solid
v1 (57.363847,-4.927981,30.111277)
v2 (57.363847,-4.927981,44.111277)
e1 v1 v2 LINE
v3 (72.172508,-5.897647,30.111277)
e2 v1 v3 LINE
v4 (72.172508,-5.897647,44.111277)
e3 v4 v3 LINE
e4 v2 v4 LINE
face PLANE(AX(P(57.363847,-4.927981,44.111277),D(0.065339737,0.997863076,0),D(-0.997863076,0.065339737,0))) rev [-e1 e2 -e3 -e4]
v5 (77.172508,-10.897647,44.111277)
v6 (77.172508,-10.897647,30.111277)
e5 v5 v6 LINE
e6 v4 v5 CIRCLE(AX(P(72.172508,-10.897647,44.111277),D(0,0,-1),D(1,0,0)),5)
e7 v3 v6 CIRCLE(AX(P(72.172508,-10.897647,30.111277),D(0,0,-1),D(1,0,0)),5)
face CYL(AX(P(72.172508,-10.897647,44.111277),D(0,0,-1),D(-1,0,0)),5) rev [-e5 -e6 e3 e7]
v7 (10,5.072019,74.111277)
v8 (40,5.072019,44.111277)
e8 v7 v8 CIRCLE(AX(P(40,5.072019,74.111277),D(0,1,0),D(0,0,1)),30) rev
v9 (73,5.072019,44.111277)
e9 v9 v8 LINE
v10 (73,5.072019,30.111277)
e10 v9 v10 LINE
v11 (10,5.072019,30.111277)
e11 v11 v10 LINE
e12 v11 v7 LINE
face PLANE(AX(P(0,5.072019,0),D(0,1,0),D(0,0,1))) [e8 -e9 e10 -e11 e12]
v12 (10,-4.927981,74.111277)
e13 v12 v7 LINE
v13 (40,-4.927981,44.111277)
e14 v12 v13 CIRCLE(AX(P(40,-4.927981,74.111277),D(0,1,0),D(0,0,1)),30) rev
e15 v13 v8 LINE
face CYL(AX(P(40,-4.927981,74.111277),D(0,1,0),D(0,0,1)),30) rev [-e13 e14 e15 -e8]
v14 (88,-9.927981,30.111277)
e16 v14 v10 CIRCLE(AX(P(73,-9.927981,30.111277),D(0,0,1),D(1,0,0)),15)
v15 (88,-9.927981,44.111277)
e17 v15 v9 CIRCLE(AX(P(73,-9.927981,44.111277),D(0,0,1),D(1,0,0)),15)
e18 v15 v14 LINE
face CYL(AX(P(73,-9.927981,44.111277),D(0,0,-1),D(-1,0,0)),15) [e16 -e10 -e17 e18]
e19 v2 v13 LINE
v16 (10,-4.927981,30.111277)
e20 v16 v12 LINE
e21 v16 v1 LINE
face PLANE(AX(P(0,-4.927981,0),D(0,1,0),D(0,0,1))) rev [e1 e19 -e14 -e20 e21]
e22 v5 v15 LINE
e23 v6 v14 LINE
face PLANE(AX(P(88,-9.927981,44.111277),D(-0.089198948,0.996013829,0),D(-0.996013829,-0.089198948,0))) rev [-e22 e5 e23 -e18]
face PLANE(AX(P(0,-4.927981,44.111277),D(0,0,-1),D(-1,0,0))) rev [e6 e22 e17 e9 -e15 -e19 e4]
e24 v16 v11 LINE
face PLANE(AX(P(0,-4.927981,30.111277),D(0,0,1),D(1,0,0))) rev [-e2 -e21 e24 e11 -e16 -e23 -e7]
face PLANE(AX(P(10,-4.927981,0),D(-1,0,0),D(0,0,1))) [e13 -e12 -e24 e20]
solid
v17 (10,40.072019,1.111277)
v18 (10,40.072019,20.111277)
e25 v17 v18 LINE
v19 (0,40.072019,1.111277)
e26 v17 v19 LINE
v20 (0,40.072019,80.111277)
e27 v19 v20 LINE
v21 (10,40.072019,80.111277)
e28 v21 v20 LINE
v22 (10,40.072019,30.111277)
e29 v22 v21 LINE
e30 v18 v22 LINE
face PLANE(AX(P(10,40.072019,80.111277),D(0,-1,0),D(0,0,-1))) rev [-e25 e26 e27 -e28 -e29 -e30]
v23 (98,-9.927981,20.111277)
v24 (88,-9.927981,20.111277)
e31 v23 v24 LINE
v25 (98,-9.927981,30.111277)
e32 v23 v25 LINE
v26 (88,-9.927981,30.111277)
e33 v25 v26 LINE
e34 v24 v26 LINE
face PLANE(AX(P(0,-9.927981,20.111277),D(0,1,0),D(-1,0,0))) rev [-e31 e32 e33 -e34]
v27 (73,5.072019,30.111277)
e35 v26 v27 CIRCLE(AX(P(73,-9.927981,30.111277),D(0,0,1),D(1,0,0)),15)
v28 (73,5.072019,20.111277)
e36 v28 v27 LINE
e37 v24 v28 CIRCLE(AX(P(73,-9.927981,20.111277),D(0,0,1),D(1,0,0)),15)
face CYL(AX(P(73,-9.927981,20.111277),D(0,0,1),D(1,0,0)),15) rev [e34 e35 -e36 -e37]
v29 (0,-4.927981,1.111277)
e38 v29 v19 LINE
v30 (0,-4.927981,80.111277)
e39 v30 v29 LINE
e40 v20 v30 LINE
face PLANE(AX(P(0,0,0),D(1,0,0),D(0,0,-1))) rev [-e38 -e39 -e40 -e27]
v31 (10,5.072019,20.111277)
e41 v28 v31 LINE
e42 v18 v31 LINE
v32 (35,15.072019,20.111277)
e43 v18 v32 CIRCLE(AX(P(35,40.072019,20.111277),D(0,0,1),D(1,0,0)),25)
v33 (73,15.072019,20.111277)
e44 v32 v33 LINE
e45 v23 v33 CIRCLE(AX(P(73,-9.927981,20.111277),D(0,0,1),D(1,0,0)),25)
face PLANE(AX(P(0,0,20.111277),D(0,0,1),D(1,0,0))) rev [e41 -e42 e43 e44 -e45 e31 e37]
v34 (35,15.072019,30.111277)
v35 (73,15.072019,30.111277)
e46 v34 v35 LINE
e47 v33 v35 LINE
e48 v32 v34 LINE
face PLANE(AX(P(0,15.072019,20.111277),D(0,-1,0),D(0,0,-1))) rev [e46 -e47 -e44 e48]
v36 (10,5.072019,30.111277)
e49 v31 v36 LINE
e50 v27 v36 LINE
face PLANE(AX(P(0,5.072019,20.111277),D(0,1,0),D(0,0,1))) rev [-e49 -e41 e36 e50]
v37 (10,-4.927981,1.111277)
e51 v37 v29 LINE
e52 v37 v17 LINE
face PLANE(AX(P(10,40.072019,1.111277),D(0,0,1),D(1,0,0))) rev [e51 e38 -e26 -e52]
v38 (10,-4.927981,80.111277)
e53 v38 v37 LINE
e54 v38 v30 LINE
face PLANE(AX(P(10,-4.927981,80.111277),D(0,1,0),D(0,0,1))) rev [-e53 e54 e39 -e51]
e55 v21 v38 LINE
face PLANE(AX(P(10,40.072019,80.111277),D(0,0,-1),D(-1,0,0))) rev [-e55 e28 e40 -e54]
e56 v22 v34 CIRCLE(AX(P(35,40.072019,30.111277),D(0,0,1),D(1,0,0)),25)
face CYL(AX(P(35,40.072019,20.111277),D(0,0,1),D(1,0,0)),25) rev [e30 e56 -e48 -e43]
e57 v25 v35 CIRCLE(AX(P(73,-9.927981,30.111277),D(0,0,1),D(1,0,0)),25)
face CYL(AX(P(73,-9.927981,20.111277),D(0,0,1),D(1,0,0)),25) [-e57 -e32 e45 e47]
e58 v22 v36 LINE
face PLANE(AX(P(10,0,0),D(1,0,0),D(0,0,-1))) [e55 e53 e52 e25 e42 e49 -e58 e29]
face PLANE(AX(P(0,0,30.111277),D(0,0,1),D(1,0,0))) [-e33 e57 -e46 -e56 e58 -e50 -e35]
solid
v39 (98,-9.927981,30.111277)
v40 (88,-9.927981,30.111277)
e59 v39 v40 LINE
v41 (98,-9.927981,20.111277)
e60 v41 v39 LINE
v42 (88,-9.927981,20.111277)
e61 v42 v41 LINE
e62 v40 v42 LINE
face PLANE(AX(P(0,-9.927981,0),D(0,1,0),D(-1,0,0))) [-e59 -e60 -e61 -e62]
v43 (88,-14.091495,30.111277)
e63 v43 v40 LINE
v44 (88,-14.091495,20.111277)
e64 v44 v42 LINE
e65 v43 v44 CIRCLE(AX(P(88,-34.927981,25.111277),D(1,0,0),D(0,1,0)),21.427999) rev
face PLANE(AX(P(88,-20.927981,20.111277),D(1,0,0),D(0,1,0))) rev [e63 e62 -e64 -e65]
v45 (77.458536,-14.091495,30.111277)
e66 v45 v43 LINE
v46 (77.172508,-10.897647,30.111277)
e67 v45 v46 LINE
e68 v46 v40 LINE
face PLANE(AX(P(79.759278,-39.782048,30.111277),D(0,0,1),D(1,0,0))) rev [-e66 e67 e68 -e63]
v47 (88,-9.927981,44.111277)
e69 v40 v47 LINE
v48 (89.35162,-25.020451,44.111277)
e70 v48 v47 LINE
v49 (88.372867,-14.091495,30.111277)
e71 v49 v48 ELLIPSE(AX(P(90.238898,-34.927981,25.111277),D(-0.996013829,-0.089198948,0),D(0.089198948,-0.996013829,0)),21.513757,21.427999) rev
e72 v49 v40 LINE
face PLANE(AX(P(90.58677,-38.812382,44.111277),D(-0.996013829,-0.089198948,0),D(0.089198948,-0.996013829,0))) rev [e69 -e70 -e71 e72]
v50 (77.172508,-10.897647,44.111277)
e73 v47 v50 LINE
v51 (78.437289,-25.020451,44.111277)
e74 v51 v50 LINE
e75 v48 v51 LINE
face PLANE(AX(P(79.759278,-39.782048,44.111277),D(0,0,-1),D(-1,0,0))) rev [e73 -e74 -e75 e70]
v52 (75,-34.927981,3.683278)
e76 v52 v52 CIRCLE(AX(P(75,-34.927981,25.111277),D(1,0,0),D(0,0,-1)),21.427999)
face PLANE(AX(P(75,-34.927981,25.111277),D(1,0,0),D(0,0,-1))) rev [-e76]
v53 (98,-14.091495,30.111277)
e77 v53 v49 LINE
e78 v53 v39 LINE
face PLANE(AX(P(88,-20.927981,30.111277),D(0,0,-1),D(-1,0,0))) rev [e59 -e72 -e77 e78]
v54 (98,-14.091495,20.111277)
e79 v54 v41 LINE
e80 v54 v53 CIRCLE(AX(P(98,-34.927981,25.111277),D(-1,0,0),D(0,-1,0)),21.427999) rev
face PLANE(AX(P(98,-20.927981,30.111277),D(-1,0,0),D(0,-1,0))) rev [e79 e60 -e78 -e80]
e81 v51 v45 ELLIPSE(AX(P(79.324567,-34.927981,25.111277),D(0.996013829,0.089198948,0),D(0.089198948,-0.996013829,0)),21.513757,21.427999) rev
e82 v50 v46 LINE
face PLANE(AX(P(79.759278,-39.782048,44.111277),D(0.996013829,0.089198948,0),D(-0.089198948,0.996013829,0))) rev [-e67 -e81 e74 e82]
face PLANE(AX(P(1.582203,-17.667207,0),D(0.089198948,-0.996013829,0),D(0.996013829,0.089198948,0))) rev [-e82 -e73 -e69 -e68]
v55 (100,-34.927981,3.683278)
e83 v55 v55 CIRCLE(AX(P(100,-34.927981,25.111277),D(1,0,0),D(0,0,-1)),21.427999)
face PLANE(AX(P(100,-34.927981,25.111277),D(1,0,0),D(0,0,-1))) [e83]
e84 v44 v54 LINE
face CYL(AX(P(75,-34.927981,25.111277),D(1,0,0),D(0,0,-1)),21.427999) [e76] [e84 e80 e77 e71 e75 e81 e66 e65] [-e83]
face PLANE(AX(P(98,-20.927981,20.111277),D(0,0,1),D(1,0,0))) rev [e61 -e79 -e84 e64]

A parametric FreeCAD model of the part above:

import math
import FreeCAD as App
import Part
import Sketcher
from FreeCAD import Vector
Q = App.Units.Quantity


def add_polygon(sketch, points):
    """Adds a closed chain of lines whose ends are joined by coincident constraints."""
    first, n = sketch.GeometryCount, len(points)
    for a, b in zip(points, points[1:] + points[:1]):
        sketch.addGeometry(Part.LineSegment(App.Vector(*a, 0), App.Vector(*b, 0)), False)
    for i in range(n):
        sketch.addConstraint(Sketcher.Constraint("Coincident", first + i, 2, first + (i + 1) % n, 1))

doc = App.newDocument("Part")
body = doc.addObject("PartDesign::Body", "Body")

sketch1 = body.newObject("Sketcher::SketchObject", "Sketch")
sketch1.AttachmentSupport = (doc.getObject("YZ_Plane"), [""])
sketch1.MapMode = "FlatFace"
add_polygon(sketch1, [(40, 80), (-5, 80), (-5, 1), (40, 1)])
sketch1.addConstraint(Sketcher.Constraint("Horizontal", 0))
sketch1.addConstraint(Sketcher.Constraint("Vertical", 1))
sketch1.addConstraint(Sketcher.Constraint("Horizontal", 2))
sketch1.addConstraint(Sketcher.Constraint("Vertical", 3))
sketch1.addConstraint(Sketcher.Constraint("DistanceX", 0, 2, 0, 1, Q("45 mm")))
sketch1.addConstraint(Sketcher.Constraint("DistanceY", 1, 2, 1, 1, Q("79 mm")))
sketch1.addConstraint(Sketcher.Constraint("DistanceX", 0, 2, -1, 1, Q("4.927981 mm")))
sketch1.addConstraint(Sketcher.Constraint("DistanceY", -1, 1, 0, 2, Q("80.111277 mm")))
pad1 = body.newObject("PartDesign::Pad", "Pad")
pad1.Profile = sketch1
pad1.Length = 10

sketch2 = body.newObject("Sketcher::SketchObject", "Sketch001")
sketch2.AttachmentSupport = (doc.getObject("XY_Plane"), [""])
sketch2.MapMode = "FlatFace"
sketch2.AttachmentOffset = App.Placement(Vector(0, 0, 30.111277), App.Rotation())
sketch2.addGeometry(Part.ArcOfCircle(Part.Circle(Vector(35, 40, 0), Vector(0, 0, 1), 25), math.radians(-180), math.radians(-90)), False)
sketch2.addGeometry(Part.LineSegment(Vector(10, 40, 0), Vector(10, 5, 0)), False)
sketch2.addGeometry(Part.LineSegment(Vector(10, 5, 0), Vector(73, 5, 0)), False)
sketch2.addGeometry(Part.ArcOfCircle(Part.Circle(Vector(73, -10, 0), Vector(0, 0, 1), 15), math.radians(0), math.radians(90)), False)
sketch2.addGeometry(Part.LineSegment(Vector(88, -10, 0), Vector(98, -10, 0)), False)
sketch2.addGeometry(Part.ArcOfCircle(Part.Circle(Vector(73, -10, 0), Vector(0, 0, 1), 25), math.radians(0), math.radians(90)), False)
sketch2.addGeometry(Part.LineSegment(Vector(73, 15, 0), Vector(35, 15, 0)), False)
sketch2.addConstraint(Sketcher.Constraint("Tangent", 0, 1, 1, 1))
sketch2.addConstraint(Sketcher.Constraint("Coincident", 1, 2, 2, 1))
sketch2.addConstraint(Sketcher.Constraint("Tangent", 2, 2, 3, 2))
sketch2.addConstraint(Sketcher.Constraint("Coincident", 3, 1, 4, 1))
sketch2.addConstraint(Sketcher.Constraint("Coincident", 4, 2, 5, 1))
sketch2.addConstraint(Sketcher.Constraint("Tangent", 5, 2, 6, 1))
sketch2.addConstraint(Sketcher.Constraint("Tangent", 6, 2, 0, 2))
sketch2.addConstraint(Sketcher.Constraint("Vertical", 1))
sketch2.addConstraint(Sketcher.Constraint("Horizontal", 2))
sketch2.addConstraint(Sketcher.Constraint("Horizontal", 4))
sketch2.addConstraint(Sketcher.Constraint("Horizontal", 6))
sketch2.addConstraint(Sketcher.Constraint("Coincident", 5, 3, 3, 3))
sketch2.addConstraint(Sketcher.Constraint("Equal", 0, 5))
sketch2.addConstraint(Sketcher.Constraint("Horizontal", 5, 3, 3, 1))
sketch2.addConstraint(Sketcher.Constraint("Radius", 0, Q("25 mm")))
sketch2.addConstraint(Sketcher.Constraint("Radius", 3, Q("15 mm")))
sketch2.addConstraint(Sketcher.Constraint("DistanceX", 2, 1, 2, 2, Q("63 mm")))
sketch2.addConstraint(Sketcher.Constraint("DistanceX", -1, 1, 0, 3, Q("35 mm")))
sketch2.addConstraint(Sketcher.Constraint("DistanceY", -1, 1, 0, 3, Q("40.072019 mm")))
pad2 = body.newObject("PartDesign::Pad", "Pad001")
pad2.Profile = sketch2
pad2.Length = 10
pad2.Reversed = True
body2 = doc.addObject("PartDesign::Body", "Body001")

sketch3 = body2.newObject("Sketcher::SketchObject", "Sketch002")
sketch3.AttachmentSupport = (doc.getObject("XZ_Plane001"), [""])
sketch3.MapMode = "FlatFace"
sketch3.AttachmentOffset = App.Placement(Vector(0, 0, -5.072019), App.Rotation())
sketch3.addGeometry(Part.LineSegment(Vector(57, 30, 0), Vector(10, 30, 0)), False)
sketch3.addGeometry(Part.LineSegment(Vector(10, 30, 0), Vector(10, 74, 0)), False)
sketch3.addGeometry(Part.ArcOfCircle(Part.Circle(Vector(40, 74, 0), Vector(0, 0, 1), 30), math.radians(180), math.radians(270)), False)
sketch3.addGeometry(Part.LineSegment(Vector(40, 44, 0), Vector(57, 44, 0)), False)
sketch3.addGeometry(Part.LineSegment(Vector(57, 44, 0), Vector(57, 30, 0)), False)
sketch3.addConstraint(Sketcher.Constraint("Coincident", 0, 2, 1, 1))
sketch3.addConstraint(Sketcher.Constraint("Tangent", 1, 2, 2, 1))
sketch3.addConstraint(Sketcher.Constraint("Tangent", 2, 2, 3, 1))
sketch3.addConstraint(Sketcher.Constraint("Coincident", 3, 2, 4, 1))
sketch3.addConstraint(Sketcher.Constraint("Coincident", 4, 2, 0, 1))
sketch3.addConstraint(Sketcher.Constraint("Horizontal", 0))
sketch3.addConstraint(Sketcher.Constraint("Vertical", 1))
sketch3.addConstraint(Sketcher.Constraint("Horizontal", 3))
sketch3.addConstraint(Sketcher.Constraint("Vertical", 4))
sketch3.addConstraint(Sketcher.Constraint("Radius", 2, Q("30 mm")))
sketch3.addConstraint(Sketcher.Constraint("DistanceY", 1, 1, 1, 2, Q("44 mm")))
sketch3.addConstraint(Sketcher.Constraint("DistanceX", -1, 1, 2, 3, Q("40 mm")))
sketch3.addConstraint(Sketcher.Constraint("DistanceX", 0, 2, 0, 1, Q("47.363847 mm")))
sketch3.addConstraint(Sketcher.Constraint("DistanceY", -1, 1, 2, 3, Q("74.111277 mm")))
pad3 = body2.newObject("PartDesign::Pad", "Pad002")
pad3.Profile = sketch3
pad3.Length = 10

sketch4 = body2.newObject("Sketcher::SketchObject", "Sketch003")
sketch4.AttachmentSupport = (doc.getObject("XY_Plane001"), [""])
sketch4.MapMode = "FlatFace"
sketch4.AttachmentOffset = App.Placement(Vector(0, 0, 44.111277), App.Rotation())
sketch4.addGeometry(Part.LineSegment(Vector(73, 5, 0), Vector(57, 5, 0)), False)
sketch4.addGeometry(Part.LineSegment(Vector(57, 5, 0), Vector(57, -5, 0)), False)
sketch4.addGeometry(Part.LineSegment(Vector(57, -5, 0), Vector(72, -6, 0)), False)
sketch4.addGeometry(Part.ArcOfCircle(Part.Circle(Vector(72, -11, 0), Vector(0, 0, 1), 5), math.radians(0), math.radians(90)), False)
sketch4.addGeometry(Part.LineSegment(Vector(77, -11, 0), Vector(88, -10, 0)), False)
sketch4.addGeometry(Part.ArcOfCircle(Part.Circle(Vector(73, -10, 0), Vector(0, 0, 1), 15), math.radians(0), math.radians(90)), False)
sketch4.addConstraint(Sketcher.Constraint("Coincident", 0, 2, 1, 1))
sketch4.addConstraint(Sketcher.Constraint("Coincident", 1, 2, 2, 1))
sketch4.addConstraint(Sketcher.Constraint("Coincident", 2, 2, 3, 2))
sketch4.addConstraint(Sketcher.Constraint("Coincident", 3, 1, 4, 1))
sketch4.addConstraint(Sketcher.Constraint("Coincident", 4, 2, 5, 1))
sketch4.addConstraint(Sketcher.Constraint("Tangent", 5, 2, 0, 1))
sketch4.addConstraint(Sketcher.Constraint("Horizontal", 0))
sketch4.addConstraint(Sketcher.Constraint("Vertical", 1))
sketch4.addConstraint(Sketcher.Constraint("Horizontal", 5, 3, 4, 2))
sketch4.addConstraint(Sketcher.Constraint("Vertical", 3, 3, 2, 2))
sketch4.addConstraint(Sketcher.Constraint("Radius", 3, Q("5 mm")))
sketch4.addConstraint(Sketcher.Constraint("Radius", 5, Q("15 mm")))
sketch4.addConstraint(Sketcher.Constraint("DistanceY", 1, 2, 1, 1, Q("10 mm")))
sketch4.addConstraint(Sketcher.Constraint("DistanceX", -1, 1, 5, 3, Q("73 mm")))
sketch4.addConstraint(Sketcher.Constraint("DistanceY", 3, 1, 2, 2, Q("5 mm")))
sketch4.addConstraint(Sketcher.Constraint("DistanceX", 0, 2, 0, 1, Q("15.636153 mm")))
sketch4.addConstraint(Sketcher.Constraint("DistanceX", -1, 1, 3, 3, Q("72.172508 mm")))
sketch4.addConstraint(Sketcher.Constraint("DistanceY", 5, 3, -1, 1, Q("9.927981 mm")))
sketch4.addConstraint(Sketcher.Constraint("Distance", 2, Q("14.840374 mm")))
pad4 = body2.newObject("PartDesign::Pad", "Pad003")
pad4.Profile = sketch4
pad4.Length = 14
pad4.Reversed = True
body3 = doc.addObject("PartDesign::Body", "Body002")

sketch5 = body3.newObject("Sketcher::SketchObject", "Sketch004")
sketch5.AttachmentSupport = (doc.getObject("YZ_Plane002"), [""])
sketch5.MapMode = "FlatFace"
sketch5.AttachmentOffset = App.Placement(Vector(0, 0, 98), App.Rotation())
sketch5.addGeometry(Part.Circle(Vector(-35, 25, 0), Vector(0, 0, 1), 16), False)
sketch5.addConstraint(Sketcher.Constraint("Diameter", 0, Q("32 mm")))
sketch5.addConstraint(Sketcher.Constraint("DistanceX", 0, 3, -1, 1, Q("34.927981 mm")))
sketch5.addConstraint(Sketcher.Constraint("DistanceY", -1, 1, 0, 3, Q("25.111277 mm")))
pad5 = body3.newObject("PartDesign::Pad", "Pad004")
pad5.Profile = sketch5
pad5.Length = 23
pad5.Reversed = True

sketch6 = body3.newObject("Sketcher::SketchObject", "Sketch005")
sketch6.AttachmentSupport = (doc.getObject("YZ_Plane002"), [""])
sketch6.MapMode = "FlatFace"
sketch6.AttachmentOffset = App.Placement(Vector(0, 0, 98), App.Rotation())
sketch6.addGeometry(Part.Circle(Vector(-35, 25, 0), Vector(0, 0, 1), 16), False)
sketch6.addConstraint(Sketcher.Constraint("Diameter", 0, Q("32 mm")))
sketch6.addConstraint(Sketcher.Constraint("DistanceX", 0, 3, -1, 1, Q("34.927981 mm")))
sketch6.addConstraint(Sketcher.Constraint("DistanceY", -1, 1, 0, 3, Q("25.111277 mm")))
pad6 = body3.newObject("PartDesign::Pad", "Pad005")
pad6.Profile = sketch6
pad6.Length = 2
body4 = doc.addObject("PartDesign::Body", "Body003")

sketch7 = body4.newObject("Sketcher::SketchObject", "Sketch006")
sketch7.AttachmentSupport = (doc.getObject("XZ_Plane003"), [""])
sketch7.MapMode = "FlatFace"
sketch7.AttachmentOffset = App.Placement(Vector(0, 0, 9.927981), App.Rotation())
add_polygon(sketch7, [(88, 30), (88, 20), (98, 20), (98, 30)])
sketch7.addConstraint(Sketcher.Constraint("Vertical", 0))
sketch7.addConstraint(Sketcher.Constraint("Horizontal", 1))
sketch7.addConstraint(Sketcher.Constraint("Vertical", 2))
sketch7.addConstraint(Sketcher.Constraint("Horizontal", 3))
sketch7.addConstraint(Sketcher.Constraint("Equal", 3, 0))
sketch7.addConstraint(Sketcher.Constraint("DistanceX", 1, 1, 1, 2, Q("10 mm")))
sketch7.addConstraint(Sketcher.Constraint("DistanceX", -1, 1, 0, 2, Q("88 mm")))
sketch7.addConstraint(Sketcher.Constraint("DistanceY", -1, 1, 0, 2, Q("20.111277 mm")))
pad7 = body4.newObject("PartDesign::Pad", "Pad006")
pad7.Profile = sketch7
pad7.Length = 11
body5 = doc.addObject("PartDesign::Body", "Body004")

sketch8 = body5.newObject("Sketcher::SketchObject", "Sketch007")
sketch8.Placement = App.Placement(Vector(1.582203, -17.667207, 0), App.Rotation(Vector(0.996013829, 0.089198948, 0), Vector(0, 0, 1), Vector(0.089198948, -0.996013829, 0), "ZXY"))
add_polygon(sketch8, [(76, 44), (76, 30), (87, 30), (87, 44)])
sketch8.addConstraint(Sketcher.Constraint("Vertical", 0))
sketch8.addConstraint(Sketcher.Constraint("Horizontal", 1))
sketch8.addConstraint(Sketcher.Constraint("Vertical", 2))
sketch8.addConstraint(Sketcher.Constraint("Horizontal", 3))
sketch8.addConstraint(Sketcher.Constraint("DistanceY", 0, 2, 0, 1, Q("14 mm")))
sketch8.addConstraint(Sketcher.Constraint("DistanceX", 1, 1, 1, 2, Q("10.870825 mm")))
sketch8.addConstraint(Sketcher.Constraint("DistanceX", -1, 1, 1, 2, Q("86.763652 mm")))
sketch8.addConstraint(Sketcher.Constraint("DistanceY", -1, 1, 0, 2, Q("30.111277 mm")))
pad8 = body5.newObject("PartDesign::Pad", "Pad007")
pad8.Profile = sketch8
pad8.Length = 29
doc.recompute()

boolean = body3.newObject("PartDesign::Boolean", "Boolean")
boolean.Type = "Fuse"
boolean.addObjects([body4])
doc.recompute()

boolean2 = body3.newObject("PartDesign::Boolean", "Boolean001")
boolean2.Type = "Fuse"
boolean2.addObjects([body5])

sketch9 = body3.newObject("Sketcher::SketchObject", "Sketch008")
sketch9.AttachmentSupport = (doc.getObject("YZ_Plane002"), [""])
sketch9.MapMode = "FlatFace"
sketch9.AttachmentOffset = App.Placement(Vector(0, 0, 100), App.Rotation())
sketch9.addGeometry(Part.Circle(Vector(-35, 25, 0), Vector(0, 0, 1), 21), False)
sketch9.addConstraint(Sketcher.Constraint("Diameter", 0, Q("42.855998 mm")))
sketch9.addConstraint(Sketcher.Constraint("DistanceX", 0, 3, -1, 1, Q("34.927981 mm")))
sketch9.addConstraint(Sketcher.Constraint("DistanceY", -1, 1, 0, 3, Q("25.111277 mm")))
pad9 = body3.newObject("PartDesign::Pad", "Pad008")
pad9.Profile = sketch9
pad9.Length = 25
pad9.Reversed = True

doc.recompute()
